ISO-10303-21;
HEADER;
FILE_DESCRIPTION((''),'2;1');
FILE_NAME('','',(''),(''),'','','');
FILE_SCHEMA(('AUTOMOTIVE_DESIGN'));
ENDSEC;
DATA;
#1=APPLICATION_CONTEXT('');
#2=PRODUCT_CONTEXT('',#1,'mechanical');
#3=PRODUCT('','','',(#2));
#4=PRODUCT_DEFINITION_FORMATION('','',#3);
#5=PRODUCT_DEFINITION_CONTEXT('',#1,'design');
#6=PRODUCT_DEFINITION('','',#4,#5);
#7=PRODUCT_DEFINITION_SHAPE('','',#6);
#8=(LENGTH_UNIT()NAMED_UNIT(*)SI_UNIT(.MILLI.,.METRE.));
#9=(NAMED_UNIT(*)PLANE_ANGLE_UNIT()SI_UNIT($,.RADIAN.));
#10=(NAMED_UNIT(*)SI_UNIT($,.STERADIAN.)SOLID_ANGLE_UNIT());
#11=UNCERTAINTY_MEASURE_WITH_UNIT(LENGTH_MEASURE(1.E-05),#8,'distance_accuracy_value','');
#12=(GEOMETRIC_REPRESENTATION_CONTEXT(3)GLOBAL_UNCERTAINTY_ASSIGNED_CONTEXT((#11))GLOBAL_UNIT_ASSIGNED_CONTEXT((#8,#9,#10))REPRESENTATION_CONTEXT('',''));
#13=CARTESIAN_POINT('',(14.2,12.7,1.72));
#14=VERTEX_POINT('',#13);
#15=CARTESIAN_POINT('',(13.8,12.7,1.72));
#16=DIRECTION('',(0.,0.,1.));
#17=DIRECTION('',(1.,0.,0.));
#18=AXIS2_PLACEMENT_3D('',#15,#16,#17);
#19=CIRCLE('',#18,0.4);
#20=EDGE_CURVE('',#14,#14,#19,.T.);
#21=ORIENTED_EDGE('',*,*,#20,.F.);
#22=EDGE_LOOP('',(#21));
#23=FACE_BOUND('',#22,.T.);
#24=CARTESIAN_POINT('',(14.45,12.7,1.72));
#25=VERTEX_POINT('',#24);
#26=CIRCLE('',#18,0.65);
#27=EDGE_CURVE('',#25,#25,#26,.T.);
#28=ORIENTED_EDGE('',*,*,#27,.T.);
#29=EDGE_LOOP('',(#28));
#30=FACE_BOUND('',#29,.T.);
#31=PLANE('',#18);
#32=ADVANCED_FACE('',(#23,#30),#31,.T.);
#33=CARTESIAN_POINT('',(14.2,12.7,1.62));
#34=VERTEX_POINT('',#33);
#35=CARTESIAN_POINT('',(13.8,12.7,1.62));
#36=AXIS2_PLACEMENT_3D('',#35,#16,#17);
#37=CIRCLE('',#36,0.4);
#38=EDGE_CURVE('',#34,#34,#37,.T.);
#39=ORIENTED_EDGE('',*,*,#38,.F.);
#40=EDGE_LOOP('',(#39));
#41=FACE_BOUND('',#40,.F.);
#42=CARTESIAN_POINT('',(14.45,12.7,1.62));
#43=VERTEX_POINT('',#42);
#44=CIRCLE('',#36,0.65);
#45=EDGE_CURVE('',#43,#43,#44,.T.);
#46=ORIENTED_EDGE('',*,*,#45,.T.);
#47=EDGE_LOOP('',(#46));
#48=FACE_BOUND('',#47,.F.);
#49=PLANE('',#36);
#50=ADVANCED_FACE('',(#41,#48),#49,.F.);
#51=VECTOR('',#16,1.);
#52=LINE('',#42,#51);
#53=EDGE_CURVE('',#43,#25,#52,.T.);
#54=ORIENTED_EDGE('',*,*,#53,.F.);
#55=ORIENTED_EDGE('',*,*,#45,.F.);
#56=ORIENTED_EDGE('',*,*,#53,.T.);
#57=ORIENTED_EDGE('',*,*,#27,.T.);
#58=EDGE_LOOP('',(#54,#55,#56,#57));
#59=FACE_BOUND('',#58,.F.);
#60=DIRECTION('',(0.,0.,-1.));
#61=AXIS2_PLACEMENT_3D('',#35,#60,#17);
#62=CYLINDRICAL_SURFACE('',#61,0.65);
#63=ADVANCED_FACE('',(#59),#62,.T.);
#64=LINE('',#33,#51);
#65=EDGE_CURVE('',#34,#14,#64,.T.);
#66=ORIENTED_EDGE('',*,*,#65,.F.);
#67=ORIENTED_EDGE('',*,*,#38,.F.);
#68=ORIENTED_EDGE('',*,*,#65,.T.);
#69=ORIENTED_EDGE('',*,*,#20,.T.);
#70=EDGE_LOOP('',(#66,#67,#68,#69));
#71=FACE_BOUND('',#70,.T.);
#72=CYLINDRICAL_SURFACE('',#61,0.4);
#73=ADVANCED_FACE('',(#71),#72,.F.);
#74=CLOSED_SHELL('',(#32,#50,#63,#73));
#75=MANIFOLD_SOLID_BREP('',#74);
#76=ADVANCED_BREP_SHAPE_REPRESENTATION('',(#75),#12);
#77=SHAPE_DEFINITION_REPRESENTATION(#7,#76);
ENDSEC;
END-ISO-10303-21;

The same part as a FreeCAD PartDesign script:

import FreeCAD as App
import Part
import Sketcher

V = App.Vector
Q = App.Units.Quantity

doc = App.newDocument("Part")
body = doc.addObject("PartDesign::Body", "Body")

# Sketch on XY plane
sketch1 = body.newObject("Sketcher::SketchObject", "Sketch")
sketch1.AttachmentSupport = (doc.getObject("XY_Plane"), [""])
sketch1.MapMode = "FlatFace"
sketch1.AttachmentOffset = App.Placement(V(0, 0, 1.62), App.Rotation())
sketch1.addGeometry(Part.Circle(V(0, 0, 0), V(0, 0, 1), 0.4), False)
sketch1.addConstraint([
    Sketcher.Constraint("Coincident", 0, 3, -1, 1),
    Sketcher.Constraint("Diameter", 0, Q("0.8 mm")),
])
pad1 = body.newObject("PartDesign::Pad", "Pad")
pad1.Profile = sketch1
pad1.Length = 0.1
body2 = doc.addObject("PartDesign::Body", "Body001")

# Sketch on XY plane
sketch2 = body2.newObject("Sketcher::SketchObject", "Sketch001")
sketch2.AttachmentSupport = (doc.getObject("XY_Plane001"), [""])
sketch2.MapMode = "FlatFace"
sketch2.AttachmentOffset = App.Placement(V(0, 0, 1.62), App.Rotation())
sketch2.addGeometry(Part.Circle(V(0, 0, 0), V(0, 0, 1), 0.7), False)
sketch2.addConstraint([
    Sketcher.Constraint("Coincident", 0, 3, -1, 1),
    Sketcher.Constraint("Diameter", 0, Q("1.3 mm")),
])
pad2 = body2.newObject("PartDesign::Pad", "Pad001")
pad2.Profile = sketch2
pad2.Length = 0.1
doc.recompute()

boolean = body2.newObject("PartDesign::Boolean", "Boolean")
boolean.Type = "Cut"
boolean.addObjects([body])
body3 = doc.addObject("PartDesign::Body", "Body002")
doc.recompute()

body2.Placement = App.Placement(V(13.8, 12.7, 0), App.Rotation(V(0, 0, 1), 0))
boolean2 = body3.newObject("PartDesign::Boolean", "Boolean001")
boolean2.Type = "Fuse"
boolean2.addObjects([body2])

doc.recompute()
